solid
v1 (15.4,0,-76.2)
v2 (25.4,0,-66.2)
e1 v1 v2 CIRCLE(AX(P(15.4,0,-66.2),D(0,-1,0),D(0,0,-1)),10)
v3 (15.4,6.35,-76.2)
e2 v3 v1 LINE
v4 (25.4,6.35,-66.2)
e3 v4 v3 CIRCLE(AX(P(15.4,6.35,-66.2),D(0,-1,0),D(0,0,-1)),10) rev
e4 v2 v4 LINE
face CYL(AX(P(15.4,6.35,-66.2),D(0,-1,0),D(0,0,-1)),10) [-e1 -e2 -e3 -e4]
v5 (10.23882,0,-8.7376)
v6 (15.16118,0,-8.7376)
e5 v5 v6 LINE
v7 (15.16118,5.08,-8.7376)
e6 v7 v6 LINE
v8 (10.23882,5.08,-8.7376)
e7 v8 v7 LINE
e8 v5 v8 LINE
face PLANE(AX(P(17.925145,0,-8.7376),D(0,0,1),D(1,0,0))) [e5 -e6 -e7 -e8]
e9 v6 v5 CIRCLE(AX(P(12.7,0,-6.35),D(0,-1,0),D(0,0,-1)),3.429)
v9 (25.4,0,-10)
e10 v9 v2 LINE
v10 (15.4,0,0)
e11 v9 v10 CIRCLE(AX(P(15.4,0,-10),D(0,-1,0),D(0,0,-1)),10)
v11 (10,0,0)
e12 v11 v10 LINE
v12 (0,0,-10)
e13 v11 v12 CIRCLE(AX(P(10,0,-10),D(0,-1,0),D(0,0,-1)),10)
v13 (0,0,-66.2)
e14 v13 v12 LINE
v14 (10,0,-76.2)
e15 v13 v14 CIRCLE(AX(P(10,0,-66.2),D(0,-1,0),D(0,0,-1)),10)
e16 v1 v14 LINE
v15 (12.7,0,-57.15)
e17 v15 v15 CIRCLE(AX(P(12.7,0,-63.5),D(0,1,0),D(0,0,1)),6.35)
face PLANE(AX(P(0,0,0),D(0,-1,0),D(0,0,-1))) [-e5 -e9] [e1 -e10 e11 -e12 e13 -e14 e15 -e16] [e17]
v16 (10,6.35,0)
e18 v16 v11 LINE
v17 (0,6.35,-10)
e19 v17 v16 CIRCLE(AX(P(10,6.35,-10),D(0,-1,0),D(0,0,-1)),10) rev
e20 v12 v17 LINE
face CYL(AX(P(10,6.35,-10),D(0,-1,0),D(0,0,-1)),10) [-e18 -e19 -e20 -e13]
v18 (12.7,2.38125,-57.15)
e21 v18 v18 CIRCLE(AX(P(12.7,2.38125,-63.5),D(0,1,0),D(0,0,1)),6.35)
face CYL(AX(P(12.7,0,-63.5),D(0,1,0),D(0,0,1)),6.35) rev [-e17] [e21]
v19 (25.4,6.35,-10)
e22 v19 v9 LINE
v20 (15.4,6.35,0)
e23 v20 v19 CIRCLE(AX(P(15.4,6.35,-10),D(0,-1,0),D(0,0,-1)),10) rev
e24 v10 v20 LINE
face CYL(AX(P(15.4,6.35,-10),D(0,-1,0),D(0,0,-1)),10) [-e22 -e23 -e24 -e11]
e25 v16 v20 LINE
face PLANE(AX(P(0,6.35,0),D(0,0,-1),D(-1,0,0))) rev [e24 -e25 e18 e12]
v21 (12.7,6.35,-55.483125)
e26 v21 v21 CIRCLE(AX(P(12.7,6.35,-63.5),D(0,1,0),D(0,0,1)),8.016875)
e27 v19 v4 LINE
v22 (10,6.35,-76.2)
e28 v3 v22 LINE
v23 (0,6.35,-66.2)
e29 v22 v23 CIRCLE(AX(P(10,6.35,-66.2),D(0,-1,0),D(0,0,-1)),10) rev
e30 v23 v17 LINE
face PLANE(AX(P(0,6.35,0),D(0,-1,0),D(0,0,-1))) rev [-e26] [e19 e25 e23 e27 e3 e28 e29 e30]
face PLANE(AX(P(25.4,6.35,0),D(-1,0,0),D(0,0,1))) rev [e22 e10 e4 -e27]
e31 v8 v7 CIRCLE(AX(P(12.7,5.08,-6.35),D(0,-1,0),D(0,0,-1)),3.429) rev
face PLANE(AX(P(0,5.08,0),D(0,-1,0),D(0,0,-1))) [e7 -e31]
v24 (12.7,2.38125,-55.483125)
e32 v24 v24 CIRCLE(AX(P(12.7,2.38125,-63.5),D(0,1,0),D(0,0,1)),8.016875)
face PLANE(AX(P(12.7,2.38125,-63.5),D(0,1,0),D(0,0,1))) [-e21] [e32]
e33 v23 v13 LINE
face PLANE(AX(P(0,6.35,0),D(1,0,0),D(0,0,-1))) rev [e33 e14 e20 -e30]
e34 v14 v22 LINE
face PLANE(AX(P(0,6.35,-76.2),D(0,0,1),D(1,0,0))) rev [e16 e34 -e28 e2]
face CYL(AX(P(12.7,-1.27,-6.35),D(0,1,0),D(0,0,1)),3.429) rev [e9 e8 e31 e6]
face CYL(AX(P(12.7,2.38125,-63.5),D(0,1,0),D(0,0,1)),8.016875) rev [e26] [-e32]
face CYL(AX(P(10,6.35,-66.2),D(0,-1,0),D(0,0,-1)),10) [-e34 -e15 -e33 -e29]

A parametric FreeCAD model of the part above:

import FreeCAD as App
import Part
import Sketcher
Q = App.Units.Quantity


def edges_at(feature, points):
    """Names of the edges that pass closest to the given points."""
    edges = feature.Shape.Edges
    near = lambda p: min(range(len(edges)), key=lambda i: edges[i].distToShape(Part.Vertex(*p))[0])
    return sorted({f"Edge{near(p) + 1}" for p in points})

doc = App.newDocument("Part")
body = doc.addObject("PartDesign::Body", "Body")

# Sketch on XZ plane
sketch1 = body.newObject("Sketcher::SketchObject", "Sketch")
sketch1.AttachmentSupport = (doc.getObject("XZ_Plane"), [""])
sketch1.MapMode = "FlatFace"
sketch1.addGeometry([
    Part.LineSegment(App.Vector(0, -76, 0), App.Vector(0, 0, 0)),
    Part.LineSegment(App.Vector(0, 0, 0), App.Vector(25, 0, 0)),
    Part.LineSegment(App.Vector(25, 0, 0), App.Vector(25, -76, 0)),
    Part.LineSegment(App.Vector(25, -76, 0), App.Vector(0, -76, 0)),
], False)
sketch1.addConstraint([
    Sketcher.Constraint("Coincident", 0, 2, 1, 1),
    Sketcher.Constraint("Coincident", 1, 2, 2, 1),
    Sketcher.Constraint("Coincident", 2, 2, 3, 1),
    Sketcher.Constraint("Coincident", 3, 2, 0, 1),
    Sketcher.Constraint("Vertical", 0),
    Sketcher.Constraint("Horizontal", 1),
    Sketcher.Constraint("Vertical", 2),
    Sketcher.Constraint("Horizontal", 3),
    Sketcher.Constraint("Coincident", 0, 2, -1, 1),
    Sketcher.Constraint("DistanceX", 1, 1, 1, 2, Q("1 in")),
    Sketcher.Constraint("DistanceY", 0, 1, 0, 2, Q("3 in")),
])
pad1 = body.newObject("PartDesign::Pad", "Pad")
pad1.Profile = sketch1
pad1.Length = Q("0.25 in")
pad1.Reversed = True

# Sketch on XZ plane
sketch2 = body.newObject("Sketcher::SketchObject", "Sketch001")
sketch2.AttachmentSupport = (doc.getObject("XZ_Plane"), [""])
sketch2.MapMode = "FlatFace"
sketch2.AttachmentOffset = App.Placement(App.Vector(0, 0, -0.25 * 25.4), App.Rotation())
sketch2.addGeometry(Part.Circle(App.Vector(13, -64, 0), App.Vector(0, 0, 1), 8), False)
sketch2.addConstraint([
    Sketcher.Constraint("DistanceX", -1, 1, 0, 3, Q("0.5 in")),
    Sketcher.Constraint("DistanceY", 0, 3, -1, 1, Q("2.5 in")),
    Sketcher.Constraint("Diameter", 0, 16.03375),
])
pocket1 = body.newObject("PartDesign::Pocket", "Pocket")
pocket1.Profile = sketch2
pocket1.Length = Q("0.15625 in")
pocket1.Reversed = True

# Sketch on XZ plane
sketch3 = body.newObject("Sketcher::SketchObject", "Sketch002")
sketch3.AttachmentSupport = (doc.getObject("XZ_Plane"), [""])
sketch3.MapMode = "FlatFace"
sketch3.AttachmentOffset = App.Placement(App.Vector(0, 0, -0.09375 * 25.4), App.Rotation())
sketch3.addGeometry(Part.Circle(App.Vector(13, -64, 0), App.Vector(0, 0, 1), 6), False)
sketch3.addConstraint([
    Sketcher.Constraint("Diameter", 0, Q("0.5 in")),
    Sketcher.Constraint("DistanceX", -1, 1, 0, 3, Q("0.5 in")),
    Sketcher.Constraint("DistanceY", 0, 3, -1, 1, Q("2.5 in")),
])
pocket2 = body.newObject("PartDesign::Pocket", "Pocket001")
pocket2.Profile = sketch3
pocket2.Type = "ThroughAll"
pocket2.Reversed = True

# Sketch on XZ plane
sketch4 = body.newObject("Sketcher::SketchObject", "Sketch003")
sketch4.AttachmentSupport = (doc.getObject("XZ_Plane"), [""])
sketch4.MapMode = "FlatFace"
sketch4.AttachmentOffset = App.Placement(App.Vector(0, 0, -0.25 * 25.4), App.Rotation())
sketch4.addGeometry(Part.Circle(App.Vector(12.7, -6.3, 0), App.Vector(0, 0, 1), 3.4), False)
sketch4.addConstraint([
    Sketcher.Constraint("Diameter", 0, Q("0.27 in")),
    Sketcher.Constraint("DistanceX", -1, 1, 0, 3, Q("0.5 in")),
    Sketcher.Constraint("DistanceY", 0, 3, -1, 1, Q("0.25 in")),
])
pocket3 = body.newObject("PartDesign::Pocket", "Pocket002")
pocket3.Profile = sketch4
pocket3.Length = Q("0.3 in")
pocket3.Reversed = True

# Sketch on XZ plane
sketch5 = body.newObject("Sketcher::SketchObject", "Sketch004")
sketch5.AttachmentSupport = (doc.getObject("XZ_Plane"), [""])
sketch5.MapMode = "FlatFace"
sketch5.AttachmentOffset = App.Placement(App.Vector(0, 0, -0.25 * 25.4), App.Rotation())
sketch5.addGeometry([
    Part.LineSegment(App.Vector(6.7, -10.6, 0), App.Vector(6.7, -8.7, 0)),
    Part.LineSegment(App.Vector(6.7, -8.7, 0), App.Vector(17.9, -8.7, 0)),
    Part.LineSegment(App.Vector(17.9, -8.7, 0), App.Vector(17.9, -10.6, 0)),
    Part.LineSegment(App.Vector(17.9, -10.6, 0), App.Vector(6.7, -10.6, 0)),
], False)
sketch5.addConstraint([
    Sketcher.Constraint("Coincident", 0, 2, 1, 1),
    Sketcher.Constraint("Coincident", 1, 2, 2, 1),
    Sketcher.Constraint("Coincident", 2, 2, 3, 1),
    Sketcher.Constraint("Coincident", 3, 2, 0, 1),
    Sketcher.Constraint("Vertical", 0),
    Sketcher.Constraint("Horizontal", 1),
    Sketcher.Constraint("Vertical", 2),
    Sketcher.Constraint("Horizontal", 3),
    Sketcher.Constraint("DistanceY", 0, 2, -1, 1, Q("0.344 in")),
    Sketcher.Constraint("DistanceY", 0, 1, 0, 2, 1.819619),
    Sketcher.Constraint("DistanceX", 1, 1, 1, 2, 11.198433),
    Sketcher.Constraint("DistanceX", -1, 1, 0, 2, 6.726712),
])
pad2 = body.newObject("PartDesign::Pad", "Pad001")
pad2.Profile = sketch5
pad2.Length = Q("0.25 in")

# Sketch on XZ plane
sketch6 = body.newObject("Sketcher::SketchObject", "Sketch005")
sketch6.AttachmentSupport = (doc.getObject("XZ_Plane"), [""])
sketch6.MapMode = "FlatFace"
sketch6.AttachmentOffset = App.Placement(App.Vector(0, 0, -0.25 * 25.4), App.Rotation())
sketch6.addGeometry([
    Part.LineSegment(App.Vector(6, -2, 0), App.Vector(6, -10, 0)),
    Part.LineSegment(App.Vector(6, -10, 0), App.Vector(19, -10, 0)),
    Part.LineSegment(App.Vector(19, -10, 0), App.Vector(19, -2, 0)),
    Part.LineSegment(App.Vector(19, -2, 0), App.Vector(6, -2, 0)),
], False)
sketch6.addConstraint([
    Sketcher.Constraint("Coincident", 0, 2, 1, 1),
    Sketcher.Constraint("Coincident", 1, 2, 2, 1),
    Sketcher.Constraint("Coincident", 2, 2, 3, 1),
    Sketcher.Constraint("Coincident", 3, 2, 0, 1),
    Sketcher.Constraint("Vertical", 0),
    Sketcher.Constraint("Horizontal", 1),
    Sketcher.Constraint("Vertical", 2),
    Sketcher.Constraint("Horizontal", 3),
    Sketcher.Constraint("DistanceX", 1, 1, 1, 2, 13.636514),
    Sketcher.Constraint("DistanceY", 0, 2, 0, 1, 8.314976),
    Sketcher.Constraint("DistanceX", -1, 1, 0, 2, 5.62264),
    Sketcher.Constraint("DistanceY", 2, 2, -1, 1, 1.971758),
])
pad3 = body.newObject("PartDesign::Pad", "Pad002")
pad3.Profile = sketch6
pad3.Length = Q("0.05 in")
doc.recompute()

fillet = body.newObject("PartDesign::Fillet", "Fillet")
fillet.Base = (pad3, edges_at(pad3, [
    (0, 3.175, -76.2),
    (25.4, 3.175, -76.2),
    (25.4, 3.175, 0),
    (0, 3.175, 0),
]))
fillet.Radius = 10

doc.recompute()
